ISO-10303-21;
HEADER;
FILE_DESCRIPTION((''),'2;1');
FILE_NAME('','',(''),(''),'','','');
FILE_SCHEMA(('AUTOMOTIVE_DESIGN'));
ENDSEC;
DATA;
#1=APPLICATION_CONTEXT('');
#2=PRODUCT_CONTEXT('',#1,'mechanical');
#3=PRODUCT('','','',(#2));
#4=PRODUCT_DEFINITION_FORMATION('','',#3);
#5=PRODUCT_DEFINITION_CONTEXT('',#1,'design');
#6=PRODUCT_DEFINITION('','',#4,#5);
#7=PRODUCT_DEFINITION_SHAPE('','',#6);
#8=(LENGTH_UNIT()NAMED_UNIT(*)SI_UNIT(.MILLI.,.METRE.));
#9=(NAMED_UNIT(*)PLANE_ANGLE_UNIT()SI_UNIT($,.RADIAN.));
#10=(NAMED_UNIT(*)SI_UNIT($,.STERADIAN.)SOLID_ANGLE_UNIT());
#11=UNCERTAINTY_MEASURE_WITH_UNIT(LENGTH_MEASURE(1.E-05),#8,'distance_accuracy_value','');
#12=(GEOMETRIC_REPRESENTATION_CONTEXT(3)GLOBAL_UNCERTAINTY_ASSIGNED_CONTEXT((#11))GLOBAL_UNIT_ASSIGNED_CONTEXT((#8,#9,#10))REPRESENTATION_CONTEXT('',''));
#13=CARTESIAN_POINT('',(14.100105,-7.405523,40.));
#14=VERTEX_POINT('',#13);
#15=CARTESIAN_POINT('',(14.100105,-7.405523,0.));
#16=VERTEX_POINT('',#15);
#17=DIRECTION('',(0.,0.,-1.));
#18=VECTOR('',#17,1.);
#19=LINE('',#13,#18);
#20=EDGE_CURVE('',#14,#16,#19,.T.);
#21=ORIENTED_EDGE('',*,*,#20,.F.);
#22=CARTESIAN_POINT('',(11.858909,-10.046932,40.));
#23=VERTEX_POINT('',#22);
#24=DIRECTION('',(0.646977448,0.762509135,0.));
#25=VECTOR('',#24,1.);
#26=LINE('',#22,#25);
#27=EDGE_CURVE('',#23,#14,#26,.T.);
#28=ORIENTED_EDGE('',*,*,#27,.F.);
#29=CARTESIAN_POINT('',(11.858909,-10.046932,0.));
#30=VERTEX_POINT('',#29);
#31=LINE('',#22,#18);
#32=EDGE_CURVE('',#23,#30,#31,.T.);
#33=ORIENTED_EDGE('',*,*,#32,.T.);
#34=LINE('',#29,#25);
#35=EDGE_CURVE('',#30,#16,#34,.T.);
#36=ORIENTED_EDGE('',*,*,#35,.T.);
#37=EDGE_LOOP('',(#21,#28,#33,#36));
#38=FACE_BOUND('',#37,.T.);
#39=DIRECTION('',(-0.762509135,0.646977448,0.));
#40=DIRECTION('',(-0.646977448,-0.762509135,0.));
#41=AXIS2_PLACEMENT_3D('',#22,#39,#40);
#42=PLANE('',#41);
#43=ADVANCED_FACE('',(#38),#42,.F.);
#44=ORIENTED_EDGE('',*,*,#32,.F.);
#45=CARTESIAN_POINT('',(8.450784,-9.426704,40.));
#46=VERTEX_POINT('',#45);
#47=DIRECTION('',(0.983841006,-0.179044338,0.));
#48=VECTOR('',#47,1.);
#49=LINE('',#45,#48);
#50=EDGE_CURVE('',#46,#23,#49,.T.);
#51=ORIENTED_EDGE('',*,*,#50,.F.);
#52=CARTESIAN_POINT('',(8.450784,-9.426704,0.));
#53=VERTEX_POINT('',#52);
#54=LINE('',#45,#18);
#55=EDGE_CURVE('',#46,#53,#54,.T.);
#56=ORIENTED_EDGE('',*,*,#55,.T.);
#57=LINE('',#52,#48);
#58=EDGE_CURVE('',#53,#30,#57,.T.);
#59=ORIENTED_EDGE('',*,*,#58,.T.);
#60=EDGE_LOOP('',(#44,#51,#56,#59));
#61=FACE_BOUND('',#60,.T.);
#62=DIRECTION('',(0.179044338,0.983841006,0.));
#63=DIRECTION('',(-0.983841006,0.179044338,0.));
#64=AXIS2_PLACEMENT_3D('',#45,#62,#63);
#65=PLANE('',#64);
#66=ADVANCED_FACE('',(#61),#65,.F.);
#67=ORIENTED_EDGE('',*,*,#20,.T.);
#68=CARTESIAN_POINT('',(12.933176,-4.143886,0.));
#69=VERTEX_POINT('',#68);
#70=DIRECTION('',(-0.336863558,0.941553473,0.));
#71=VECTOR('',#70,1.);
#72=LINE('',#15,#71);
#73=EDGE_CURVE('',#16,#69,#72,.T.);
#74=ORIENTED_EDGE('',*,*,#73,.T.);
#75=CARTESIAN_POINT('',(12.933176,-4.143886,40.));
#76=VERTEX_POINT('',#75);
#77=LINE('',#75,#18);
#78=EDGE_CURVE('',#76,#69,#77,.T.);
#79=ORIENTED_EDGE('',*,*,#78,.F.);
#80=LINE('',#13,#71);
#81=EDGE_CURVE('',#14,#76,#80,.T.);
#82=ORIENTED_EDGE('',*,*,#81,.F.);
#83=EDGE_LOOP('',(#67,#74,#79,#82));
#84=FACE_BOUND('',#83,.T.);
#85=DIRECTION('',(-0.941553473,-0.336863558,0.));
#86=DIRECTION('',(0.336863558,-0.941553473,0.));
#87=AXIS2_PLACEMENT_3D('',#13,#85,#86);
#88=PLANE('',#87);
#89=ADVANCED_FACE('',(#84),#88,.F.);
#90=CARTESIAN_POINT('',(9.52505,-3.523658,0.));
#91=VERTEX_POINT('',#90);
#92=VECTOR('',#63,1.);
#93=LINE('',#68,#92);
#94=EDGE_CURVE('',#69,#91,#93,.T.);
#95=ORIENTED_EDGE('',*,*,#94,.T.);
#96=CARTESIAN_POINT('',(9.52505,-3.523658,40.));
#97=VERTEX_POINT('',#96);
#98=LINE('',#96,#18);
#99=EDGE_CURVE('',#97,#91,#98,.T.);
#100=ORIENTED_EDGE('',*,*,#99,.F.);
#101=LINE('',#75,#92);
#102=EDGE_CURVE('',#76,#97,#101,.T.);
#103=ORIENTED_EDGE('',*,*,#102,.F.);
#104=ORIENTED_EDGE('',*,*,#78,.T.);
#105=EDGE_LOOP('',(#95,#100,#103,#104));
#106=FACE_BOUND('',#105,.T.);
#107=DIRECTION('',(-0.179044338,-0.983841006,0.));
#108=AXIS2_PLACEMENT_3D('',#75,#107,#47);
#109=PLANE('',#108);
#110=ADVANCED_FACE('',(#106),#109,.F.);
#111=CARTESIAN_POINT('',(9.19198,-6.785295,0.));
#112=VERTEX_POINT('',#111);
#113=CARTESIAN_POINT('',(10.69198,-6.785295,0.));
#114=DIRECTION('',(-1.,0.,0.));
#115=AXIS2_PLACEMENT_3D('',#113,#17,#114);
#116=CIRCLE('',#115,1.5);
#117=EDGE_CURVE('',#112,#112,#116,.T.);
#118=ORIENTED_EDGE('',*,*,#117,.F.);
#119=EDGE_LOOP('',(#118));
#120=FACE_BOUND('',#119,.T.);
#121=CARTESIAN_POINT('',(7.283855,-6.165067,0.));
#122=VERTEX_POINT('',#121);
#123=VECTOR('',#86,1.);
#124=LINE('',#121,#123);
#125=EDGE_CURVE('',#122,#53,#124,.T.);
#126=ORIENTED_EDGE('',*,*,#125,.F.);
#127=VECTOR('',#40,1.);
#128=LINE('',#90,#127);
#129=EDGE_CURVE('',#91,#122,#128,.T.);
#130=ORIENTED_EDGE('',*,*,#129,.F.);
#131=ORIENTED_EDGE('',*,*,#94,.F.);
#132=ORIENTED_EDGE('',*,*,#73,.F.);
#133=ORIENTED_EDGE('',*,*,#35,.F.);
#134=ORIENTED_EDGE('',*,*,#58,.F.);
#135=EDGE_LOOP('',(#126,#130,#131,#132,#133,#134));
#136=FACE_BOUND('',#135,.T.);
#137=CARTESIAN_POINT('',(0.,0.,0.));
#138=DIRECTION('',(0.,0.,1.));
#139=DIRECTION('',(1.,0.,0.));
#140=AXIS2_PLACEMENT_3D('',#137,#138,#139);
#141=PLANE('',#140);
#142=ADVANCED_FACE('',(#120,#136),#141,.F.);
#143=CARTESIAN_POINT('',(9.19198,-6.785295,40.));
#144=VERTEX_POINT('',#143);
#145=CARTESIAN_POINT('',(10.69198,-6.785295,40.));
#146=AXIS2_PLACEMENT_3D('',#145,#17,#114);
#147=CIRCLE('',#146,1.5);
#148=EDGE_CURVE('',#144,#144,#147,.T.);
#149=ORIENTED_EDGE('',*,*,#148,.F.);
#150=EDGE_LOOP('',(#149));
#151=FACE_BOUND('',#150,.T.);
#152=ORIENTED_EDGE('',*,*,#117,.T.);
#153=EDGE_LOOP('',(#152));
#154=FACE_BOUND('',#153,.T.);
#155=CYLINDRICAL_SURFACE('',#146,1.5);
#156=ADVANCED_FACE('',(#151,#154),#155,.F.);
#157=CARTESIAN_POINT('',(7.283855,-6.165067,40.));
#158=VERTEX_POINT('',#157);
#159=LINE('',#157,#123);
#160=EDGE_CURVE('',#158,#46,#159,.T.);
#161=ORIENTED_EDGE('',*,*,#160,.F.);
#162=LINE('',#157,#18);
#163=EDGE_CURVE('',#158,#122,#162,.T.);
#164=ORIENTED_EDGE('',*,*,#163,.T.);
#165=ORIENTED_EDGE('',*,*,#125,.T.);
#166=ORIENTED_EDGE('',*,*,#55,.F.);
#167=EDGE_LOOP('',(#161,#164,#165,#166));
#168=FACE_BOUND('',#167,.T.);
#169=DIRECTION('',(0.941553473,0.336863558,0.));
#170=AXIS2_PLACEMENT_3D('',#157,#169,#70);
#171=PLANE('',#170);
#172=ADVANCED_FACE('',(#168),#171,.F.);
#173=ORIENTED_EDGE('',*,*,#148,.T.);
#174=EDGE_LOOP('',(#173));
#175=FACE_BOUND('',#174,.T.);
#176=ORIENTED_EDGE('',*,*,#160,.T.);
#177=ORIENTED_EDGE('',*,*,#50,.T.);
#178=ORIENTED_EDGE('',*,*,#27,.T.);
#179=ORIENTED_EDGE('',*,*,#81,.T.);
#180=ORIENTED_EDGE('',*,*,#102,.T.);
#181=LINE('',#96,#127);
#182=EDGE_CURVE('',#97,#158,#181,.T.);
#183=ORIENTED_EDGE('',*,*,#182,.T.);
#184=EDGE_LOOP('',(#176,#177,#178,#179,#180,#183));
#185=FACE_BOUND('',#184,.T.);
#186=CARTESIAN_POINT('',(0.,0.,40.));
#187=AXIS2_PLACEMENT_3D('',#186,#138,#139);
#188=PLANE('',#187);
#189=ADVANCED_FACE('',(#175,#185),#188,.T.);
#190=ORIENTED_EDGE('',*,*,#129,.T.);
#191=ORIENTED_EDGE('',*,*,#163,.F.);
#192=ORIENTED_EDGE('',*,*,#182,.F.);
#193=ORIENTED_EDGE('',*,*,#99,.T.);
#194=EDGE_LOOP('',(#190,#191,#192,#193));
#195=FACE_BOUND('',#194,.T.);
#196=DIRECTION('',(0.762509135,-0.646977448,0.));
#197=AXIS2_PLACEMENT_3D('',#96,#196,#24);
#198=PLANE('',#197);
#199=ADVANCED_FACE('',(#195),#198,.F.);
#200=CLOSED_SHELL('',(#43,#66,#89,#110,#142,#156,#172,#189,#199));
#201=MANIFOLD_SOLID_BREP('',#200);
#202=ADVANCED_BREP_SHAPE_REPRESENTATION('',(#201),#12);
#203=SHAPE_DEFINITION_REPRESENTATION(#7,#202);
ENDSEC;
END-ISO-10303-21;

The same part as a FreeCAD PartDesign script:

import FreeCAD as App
import Part
import Sketcher

V = App.Vector

doc = App.newDocument("Part")
body = doc.addObject("PartDesign::Body", "Body")

# Sketch on XY plane
sketch1 = body.newObject("Sketcher::SketchObject", "Sketch")
sketch1.AttachmentSupport = (doc.getObject("XY_Plane"), [""])
sketch1.MapMode = "FlatFace"
sketch1.addGeometry([
    Part.LineSegment(V(12.9, -4.1, 0), V(9.5, -3.5, 0)),  # 0
    Part.LineSegment(V(9.5, -3.5, 0), V(7.3, -6.2, 0)),  # 1
    Part.LineSegment(V(7.3, -6.2, 0), V(8.5, -9.4, 0)),  # 2
    Part.LineSegment(V(8.5, -9.4, 0), V(11.9, -10, 0)),  # 3
    Part.LineSegment(V(11.9, -10, 0), V(14.1, -7.4, 0)),  # 4
    Part.LineSegment(V(14.1, -7.4, 0), V(12.9, -4.1, 0)),  # 5
], False)
sketch1.addConstraint([
    Sketcher.Constraint("Coincident", 0, 2, 1, 1),
    Sketcher.Constraint("Coincident", 1, 2, 2, 1),
    Sketcher.Constraint("Coincident", 2, 2, 3, 1),
    Sketcher.Constraint("Coincident", 3, 2, 4, 1),
    Sketcher.Constraint("Coincident", 4, 2, 5, 1),
    Sketcher.Constraint("Coincident", 5, 2, 0, 1),
    Sketcher.Constraint("Parallel", 0, 3),
    Sketcher.Constraint("Parallel", 1, 4),
    Sketcher.Constraint("Parallel", 2, 5),
    Sketcher.Constraint("Equal", 0, 1),
    Sketcher.Constraint("Equal", 1, 2),
    Sketcher.Constraint("Equal", 2, 3),
    Sketcher.Constraint("Distance", 0, 3.464102),
    Sketcher.Constraint("DistanceX", -1, 1, 0, 2, 9.52505),
    Sketcher.Constraint("DistanceY", 0, 2, -1, 1, 3.523658),
    Sketcher.Constraint("DistanceX", -1, 1, 3, 2, 11.858909),
    Sketcher.Constraint("DistanceY", 3, 2, -1, 1, 10.046932),
    Sketcher.Constraint("DistanceY", 1, 2, 0, 2, 2.641409),
])
pad1 = body.newObject("PartDesign::Pad", "Pad")
pad1.Profile = sketch1
pad1.Length = 40

# Sketch on XY plane
sketch2 = body.newObject("Sketcher::SketchObject", "Sketch001")
sketch2.AttachmentSupport = (doc.getObject("XY_Plane"), [""])
sketch2.MapMode = "FlatFace"
sketch2.addGeometry(Part.Circle(V(10.7, -6.8, 0), V(0, 0, 1), 1.5), False)
sketch2.addConstraint([
    Sketcher.Constraint("Diameter", 0, 3.0),
    Sketcher.Constraint("DistanceX", -1, 1, 0, 3, 10.69198),
    Sketcher.Constraint("DistanceY", 0, 3, -1, 1, 6.785295),
])
pocket1 = body.newObject("PartDesign::Pocket", "Pocket")
pocket1.Profile = sketch2
pocket1.Length = 40
pocket1.Reversed = True

doc.recompute()
